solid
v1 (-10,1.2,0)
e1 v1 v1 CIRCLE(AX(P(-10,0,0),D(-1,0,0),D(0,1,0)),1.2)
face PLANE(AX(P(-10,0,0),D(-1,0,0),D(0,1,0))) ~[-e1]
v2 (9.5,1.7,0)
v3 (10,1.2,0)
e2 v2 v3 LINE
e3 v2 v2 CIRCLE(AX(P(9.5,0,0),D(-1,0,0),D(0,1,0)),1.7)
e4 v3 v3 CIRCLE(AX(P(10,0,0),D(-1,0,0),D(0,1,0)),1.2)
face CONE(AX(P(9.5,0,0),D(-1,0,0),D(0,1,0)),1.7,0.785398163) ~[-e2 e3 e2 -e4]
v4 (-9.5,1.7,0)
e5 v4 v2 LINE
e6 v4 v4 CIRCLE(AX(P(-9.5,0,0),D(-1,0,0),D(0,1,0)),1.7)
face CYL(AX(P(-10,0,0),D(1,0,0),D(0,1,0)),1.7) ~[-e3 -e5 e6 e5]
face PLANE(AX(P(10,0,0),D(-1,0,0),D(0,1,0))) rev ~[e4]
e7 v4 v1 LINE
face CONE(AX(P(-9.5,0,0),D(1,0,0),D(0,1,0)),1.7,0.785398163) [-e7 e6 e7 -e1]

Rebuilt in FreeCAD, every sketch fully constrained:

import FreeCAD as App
import Part
import Sketcher
from FreeCAD import Vector
Q = App.Units.Quantity


def edges_at(feature, points):
    """Names of the edges that pass closest to the given points."""
    edges = feature.Shape.Edges
    near = lambda p: min(range(len(edges)), key=lambda i: edges[i].distToShape(Part.Vertex(*p))[0])
    return sorted({f"Edge{near(p) + 1}" for p in points})

doc = App.newDocument("Part")
body = doc.addObject("PartDesign::Body", "Body")

# Sketch on XY plane
sketch1 = body.newObject("Sketcher::SketchObject", "Sketch")
sketch1.AttachmentSupport = (doc.getObject("XY_Plane"), [""])
sketch1.MapMode = "FlatFace"
sketch1.addGeometry([
    Part.LineSegment(Vector(10, 1.7, 0), Vector(-10, 1.7, 0)),
    Part.LineSegment(Vector(-10, 1.7, 0), Vector(-10, 0, 0)),
    Part.LineSegment(Vector(-10, 0, 0), Vector(10, 0, 0)),
    Part.LineSegment(Vector(10, 0, 0), Vector(10, 1.7, 0)),
], False)
sketch1.addConstraint([
    Sketcher.Constraint("Coincident", 0, 2, 1, 1),
    Sketcher.Constraint("Coincident", 1, 2, 2, 1),
    Sketcher.Constraint("Coincident", 2, 2, 3, 1),
    Sketcher.Constraint("Coincident", 3, 2, 0, 1),
    Sketcher.Constraint("Horizontal", 0),
    Sketcher.Constraint("Vertical", 1),
    Sketcher.Constraint("Horizontal", 2),
    Sketcher.Constraint("Vertical", 3),
    Sketcher.Constraint("Symmetric", 1, 2, 2, 2, -1, 1),
    Sketcher.Constraint("DistanceX", 0, 2, 0, 1, Q("20 mm")),
    Sketcher.Constraint("DistanceY", 1, 2, 1, 1, Q("1.7 mm")),
])
revolution = body.newObject("PartDesign::Revolution", "Revolution")
revolution.Profile = sketch1
revolution.ReferenceAxis = (sketch1, ["H_Axis"])
revolution.Angle = 360
doc.recompute()

chamfer = body.newObject("PartDesign::Chamfer", "Chamfer")
chamfer.Base = (revolution, edges_at(revolution, [(-10, -1.7, 0), (10, -1.7, 0)]))
chamfer.Size = 0.5

doc.recompute()
